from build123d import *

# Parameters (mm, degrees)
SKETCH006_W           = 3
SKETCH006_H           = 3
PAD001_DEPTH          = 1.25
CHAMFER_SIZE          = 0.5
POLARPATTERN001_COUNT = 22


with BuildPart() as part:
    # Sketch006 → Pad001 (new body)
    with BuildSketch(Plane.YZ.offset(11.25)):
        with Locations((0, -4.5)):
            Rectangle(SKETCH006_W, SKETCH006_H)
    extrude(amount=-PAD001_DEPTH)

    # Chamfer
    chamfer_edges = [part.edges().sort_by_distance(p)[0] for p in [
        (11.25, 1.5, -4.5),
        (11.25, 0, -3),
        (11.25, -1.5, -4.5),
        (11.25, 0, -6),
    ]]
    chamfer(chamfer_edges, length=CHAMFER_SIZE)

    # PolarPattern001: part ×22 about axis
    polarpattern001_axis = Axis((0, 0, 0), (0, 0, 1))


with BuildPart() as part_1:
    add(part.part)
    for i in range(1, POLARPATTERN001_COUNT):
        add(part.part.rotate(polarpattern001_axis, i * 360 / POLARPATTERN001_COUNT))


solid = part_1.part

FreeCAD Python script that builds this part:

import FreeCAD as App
import Part
import Sketcher
from FreeCAD import Vector


def edges_at(feature, points):
    """Names of the edges that pass closest to the given points."""
    edges = feature.Shape.Edges
    near = lambda p: min(range(len(edges)), key=lambda i: edges[i].distToShape(Part.Vertex(*p))[0])
    return sorted({f"Edge{near(p) + 1}" for p in points})

doc = App.newDocument("Part")
body = doc.addObject("PartDesign::Body", "Body")

# Sketch on YZ plane
sketch1 = body.newObject("Sketcher::SketchObject", "Sketch")
sketch1.AttachmentSupport = (doc.getObject("YZ_Plane"), [""])
sketch1.MapMode = "FlatFace"
sketch1.AttachmentOffset = App.Placement(Vector(0, 0, 11.25), App.Rotation())
sketch1.addGeometry([
    Part.LineSegment(Vector(-1.5, -3, 0), Vector(-1.5, -6, 0)),
    Part.LineSegment(Vector(-1.5, -6, 0), Vector(1.5, -6, 0)),
    Part.LineSegment(Vector(1.5, -6, 0), Vector(1.5, -3, 0)),
    Part.LineSegment(Vector(1.5, -3, 0), Vector(-1.5, -3, 0)),
], False)
sketch1.addConstraint([
    Sketcher.Constraint("Coincident", 0, 2, 1, 1),
    Sketcher.Constraint("Coincident", 1, 2, 2, 1),
    Sketcher.Constraint("Coincident", 2, 2, 3, 1),
    Sketcher.Constraint("Coincident", 3, 2, 0, 1),
    Sketcher.Constraint("Vertical", 0),
    Sketcher.Constraint("Horizontal", 1),
    Sketcher.Constraint("Vertical", 2),
    Sketcher.Constraint("Horizontal", 3),
    Sketcher.Constraint("Equal", 3, 0),
    Sketcher.Constraint("DistanceX", 1, 1, 1, 2, 3.0),
    Sketcher.Constraint("DistanceY", 0, 2, -1, 1, 6.0),
    Sketcher.Constraint("DistanceX", 0, 2, -1, 1, 1.5),
])
pad1 = body.newObject("PartDesign::Pad", "Pad")
pad1.Profile = sketch1
pad1.Length = 1.25
pad1.Reversed = True
doc.recompute()

chamfer = body.newObject("PartDesign::Chamfer", "Chamfer")
chamfer.Base = (pad1, edges_at(pad1, [
    (11.25, 1.5, -4.5),
    (11.25, 0, -3),
    (11.25, -1.5, -4.5),
    (11.25, 0, -6),
]))
chamfer.Size = 0.5
body2 = doc.addObject("PartDesign::Body", "Body001")
doc.recompute()

body2.BaseFeature = body
doc.recompute()

body3 = doc.addObject("PartDesign::Body", "Body002")
body3.BaseFeature = body
body3.Placement = App.Placement(Vector(0, 0, 0), App.Rotation(Vector(0, 0, 1), 16.363636))
boolean = body2.newObject("PartDesign::Boolean", "Boolean")
boolean.Type = "Fuse"
boolean.addObjects([body3])
doc.recompute()

body4 = doc.addObject("PartDesign::Body", "Body003")
body4.BaseFeature = body
body4.Placement = App.Placement(Vector(0, 0, 0), App.Rotation(Vector(0, 0, 1), 32.727273))
boolean2 = body2.newObject("PartDesign::Boolean", "Boolean001")
boolean2.Type = "Fuse"
boolean2.addObjects([body4])
doc.recompute()

body5 = doc.addObject("PartDesign::Body", "Body004")
body5.BaseFeature = body
body5.Placement = App.Placement(Vector(0, 0, 0), App.Rotation(Vector(0, 0, 1), 49.090909))
boolean3 = body2.newObject("PartDesign::Boolean", "Boolean002")
boolean3.Type = "Fuse"
boolean3.addObjects([body5])
doc.recompute()

body6 = doc.addObject("PartDesign::Body", "Body005")
body6.BaseFeature = body
body6.Placement = App.Placement(Vector(0, 0, 0), App.Rotation(Vector(0, 0, 1), 65.454545))
boolean4 = body2.newObject("PartDesign::Boolean", "Boolean003")
boolean4.Type = "Fuse"
boolean4.addObjects([body6])
doc.recompute()

body7 = doc.addObject("PartDesign::Body", "Body006")
body7.BaseFeature = body
body7.Placement = App.Placement(Vector(0, 0, 0), App.Rotation(Vector(0, 0, 1), 81.818182))
boolean5 = body2.newObject("PartDesign::Boolean", "Boolean004")
boolean5.Type = "Fuse"
boolean5.addObjects([body7])
doc.recompute()

body8 = doc.addObject("PartDesign::Body", "Body007")
body8.BaseFeature = body
body8.Placement = App.Placement(Vector(0, 0, 0), App.Rotation(Vector(0, 0, 1), 98.181818))
boolean6 = body2.newObject("PartDesign::Boolean", "Boolean005")
boolean6.Type = "Fuse"
boolean6.addObjects([body8])
doc.recompute()

body9 = doc.addObject("PartDesign::Body", "Body008")
body9.BaseFeature = body
body9.Placement = App.Placement(Vector(0, 0, 0), App.Rotation(Vector(0, 0, 1), 114.545455))
boolean7 = body2.newObject("PartDesign::Boolean", "Boolean006")
boolean7.Type = "Fuse"
boolean7.addObjects([body9])
doc.recompute()

body10 = doc.addObject("PartDesign::Body", "Body009")
body10.BaseFeature = body
body10.Placement = App.Placement(Vector(0, 0, 0), App.Rotation(Vector(0, 0, 1), 130.909091))
boolean8 = body2.newObject("PartDesign::Boolean", "Boolean007")
boolean8.Type = "Fuse"
boolean8.addObjects([body10])
doc.recompute()

body11 = doc.addObject("PartDesign::Body", "Body010")
body11.BaseFeature = body
body11.Placement = App.Placement(Vector(0, 0, 0), App.Rotation(Vector(0, 0, 1), 147.272727))
boolean9 = body2.newObject("PartDesign::Boolean", "Boolean008")
boolean9.Type = "Fuse"
boolean9.addObjects([body11])
doc.recompute()

body12 = doc.addObject("PartDesign::Body", "Body011")
body12.BaseFeature = body
body12.Placement = App.Placement(Vector(0, 0, 0), App.Rotation(Vector(0, 0, 1), 163.636364))
boolean10 = body2.newObject("PartDesign::Boolean", "Boolean009")
boolean10.Type = "Fuse"
boolean10.addObjects([body12])
doc.recompute()

body13 = doc.addObject("PartDesign::Body", "Body012")
body13.BaseFeature = body
body13.Placement = App.Placement(Vector(0, 0, 0), App.Rotation(Vector(0, 0, 1), 180))
boolean11 = body2.newObject("PartDesign::Boolean", "Boolean010")
boolean11.Type = "Fuse"
boolean11.addObjects([body13])
doc.recompute()

body14 = doc.addObject("PartDesign::Body", "Body013")
body14.BaseFeature = body
body14.Placement = App.Placement(Vector(0, 0, 0), App.Rotation(Vector(0, 0, 1), 196.363636))
boolean12 = body2.newObject("PartDesign::Boolean", "Boolean011")
boolean12.Type = "Fuse"
boolean12.addObjects([body14])
doc.recompute()

body15 = doc.addObject("PartDesign::Body", "Body014")
body15.BaseFeature = body
body15.Placement = App.Placement(Vector(0, 0, 0), App.Rotation(Vector(0, 0, 1), 212.727273))
boolean13 = body2.newObject("PartDesign::Boolean", "Boolean012")
boolean13.Type = "Fuse"
boolean13.addObjects([body15])
doc.recompute()

body16 = doc.addObject("PartDesign::Body", "Body015")
body16.BaseFeature = body
body16.Placement = App.Placement(Vector(0, 0, 0), App.Rotation(Vector(0, 0, 1), 229.090909))
boolean14 = body2.newObject("PartDesign::Boolean", "Boolean013")
boolean14.Type = "Fuse"
boolean14.addObjects([body16])
doc.recompute()

body17 = doc.addObject("PartDesign::Body", "Body016")
body17.BaseFeature = body
body17.Placement = App.Placement(Vector(0, 0, 0), App.Rotation(Vector(0, 0, 1), 245.454545))
boolean15 = body2.newObject("PartDesign::Boolean", "Boolean014")
boolean15.Type = "Fuse"
boolean15.addObjects([body17])
doc.recompute()

body18 = doc.addObject("PartDesign::Body", "Body017")
body18.BaseFeature = body
body18.Placement = App.Placement(Vector(0, 0, 0), App.Rotation(Vector(0, 0, 1), 261.818182))
boolean16 = body2.newObject("PartDesign::Boolean", "Boolean015")
boolean16.Type = "Fuse"
boolean16.addObjects([body18])
doc.recompute()

body19 = doc.addObject("PartDesign::Body", "Body018")
body19.BaseFeature = body
body19.Placement = App.Placement(Vector(0, 0, 0), App.Rotation(Vector(0, 0, 1), 278.181818))
boolean17 = body2.newObject("PartDesign::Boolean", "Boolean016")
boolean17.Type = "Fuse"
boolean17.addObjects([body19])
doc.recompute()

body20 = doc.addObject("PartDesign::Body", "Body019")
body20.BaseFeature = body
body20.Placement = App.Placement(Vector(0, 0, 0), App.Rotation(Vector(0, 0, 1), 294.545455))
boolean18 = body2.newObject("PartDesign::Boolean", "Boolean017")
boolean18.Type = "Fuse"
boolean18.addObjects([body20])
doc.recompute()

body21 = doc.addObject("PartDesign::Body", "Body020")
body21.BaseFeature = body
body21.Placement = App.Placement(Vector(0, 0, 0), App.Rotation(Vector(0, 0, 1), 310.909091))
boolean19 = body2.newObject("PartDesign::Boolean", "Boolean018")
boolean19.Type = "Fuse"
boolean19.addObjects([body21])
doc.recompute()

body22 = doc.addObject("PartDesign::Body", "Body021")
body22.BaseFeature = body
body22.Placement = App.Placement(Vector(0, 0, 0), App.Rotation(Vector(0, 0, 1), 327.272727))
boolean20 = body2.newObject("PartDesign::Boolean", "Boolean019")
boolean20.Type = "Fuse"
boolean20.addObjects([body22])
doc.recompute()

body.Placement = App.Placement(Vector(0, 0, 0), App.Rotation(Vector(0, 0, 1), 343.636364))
boolean21 = body2.newObject("PartDesign::Boolean", "Boolean020")
boolean21.Type = "Fuse"
boolean21.addObjects([body])

doc.recompute()
